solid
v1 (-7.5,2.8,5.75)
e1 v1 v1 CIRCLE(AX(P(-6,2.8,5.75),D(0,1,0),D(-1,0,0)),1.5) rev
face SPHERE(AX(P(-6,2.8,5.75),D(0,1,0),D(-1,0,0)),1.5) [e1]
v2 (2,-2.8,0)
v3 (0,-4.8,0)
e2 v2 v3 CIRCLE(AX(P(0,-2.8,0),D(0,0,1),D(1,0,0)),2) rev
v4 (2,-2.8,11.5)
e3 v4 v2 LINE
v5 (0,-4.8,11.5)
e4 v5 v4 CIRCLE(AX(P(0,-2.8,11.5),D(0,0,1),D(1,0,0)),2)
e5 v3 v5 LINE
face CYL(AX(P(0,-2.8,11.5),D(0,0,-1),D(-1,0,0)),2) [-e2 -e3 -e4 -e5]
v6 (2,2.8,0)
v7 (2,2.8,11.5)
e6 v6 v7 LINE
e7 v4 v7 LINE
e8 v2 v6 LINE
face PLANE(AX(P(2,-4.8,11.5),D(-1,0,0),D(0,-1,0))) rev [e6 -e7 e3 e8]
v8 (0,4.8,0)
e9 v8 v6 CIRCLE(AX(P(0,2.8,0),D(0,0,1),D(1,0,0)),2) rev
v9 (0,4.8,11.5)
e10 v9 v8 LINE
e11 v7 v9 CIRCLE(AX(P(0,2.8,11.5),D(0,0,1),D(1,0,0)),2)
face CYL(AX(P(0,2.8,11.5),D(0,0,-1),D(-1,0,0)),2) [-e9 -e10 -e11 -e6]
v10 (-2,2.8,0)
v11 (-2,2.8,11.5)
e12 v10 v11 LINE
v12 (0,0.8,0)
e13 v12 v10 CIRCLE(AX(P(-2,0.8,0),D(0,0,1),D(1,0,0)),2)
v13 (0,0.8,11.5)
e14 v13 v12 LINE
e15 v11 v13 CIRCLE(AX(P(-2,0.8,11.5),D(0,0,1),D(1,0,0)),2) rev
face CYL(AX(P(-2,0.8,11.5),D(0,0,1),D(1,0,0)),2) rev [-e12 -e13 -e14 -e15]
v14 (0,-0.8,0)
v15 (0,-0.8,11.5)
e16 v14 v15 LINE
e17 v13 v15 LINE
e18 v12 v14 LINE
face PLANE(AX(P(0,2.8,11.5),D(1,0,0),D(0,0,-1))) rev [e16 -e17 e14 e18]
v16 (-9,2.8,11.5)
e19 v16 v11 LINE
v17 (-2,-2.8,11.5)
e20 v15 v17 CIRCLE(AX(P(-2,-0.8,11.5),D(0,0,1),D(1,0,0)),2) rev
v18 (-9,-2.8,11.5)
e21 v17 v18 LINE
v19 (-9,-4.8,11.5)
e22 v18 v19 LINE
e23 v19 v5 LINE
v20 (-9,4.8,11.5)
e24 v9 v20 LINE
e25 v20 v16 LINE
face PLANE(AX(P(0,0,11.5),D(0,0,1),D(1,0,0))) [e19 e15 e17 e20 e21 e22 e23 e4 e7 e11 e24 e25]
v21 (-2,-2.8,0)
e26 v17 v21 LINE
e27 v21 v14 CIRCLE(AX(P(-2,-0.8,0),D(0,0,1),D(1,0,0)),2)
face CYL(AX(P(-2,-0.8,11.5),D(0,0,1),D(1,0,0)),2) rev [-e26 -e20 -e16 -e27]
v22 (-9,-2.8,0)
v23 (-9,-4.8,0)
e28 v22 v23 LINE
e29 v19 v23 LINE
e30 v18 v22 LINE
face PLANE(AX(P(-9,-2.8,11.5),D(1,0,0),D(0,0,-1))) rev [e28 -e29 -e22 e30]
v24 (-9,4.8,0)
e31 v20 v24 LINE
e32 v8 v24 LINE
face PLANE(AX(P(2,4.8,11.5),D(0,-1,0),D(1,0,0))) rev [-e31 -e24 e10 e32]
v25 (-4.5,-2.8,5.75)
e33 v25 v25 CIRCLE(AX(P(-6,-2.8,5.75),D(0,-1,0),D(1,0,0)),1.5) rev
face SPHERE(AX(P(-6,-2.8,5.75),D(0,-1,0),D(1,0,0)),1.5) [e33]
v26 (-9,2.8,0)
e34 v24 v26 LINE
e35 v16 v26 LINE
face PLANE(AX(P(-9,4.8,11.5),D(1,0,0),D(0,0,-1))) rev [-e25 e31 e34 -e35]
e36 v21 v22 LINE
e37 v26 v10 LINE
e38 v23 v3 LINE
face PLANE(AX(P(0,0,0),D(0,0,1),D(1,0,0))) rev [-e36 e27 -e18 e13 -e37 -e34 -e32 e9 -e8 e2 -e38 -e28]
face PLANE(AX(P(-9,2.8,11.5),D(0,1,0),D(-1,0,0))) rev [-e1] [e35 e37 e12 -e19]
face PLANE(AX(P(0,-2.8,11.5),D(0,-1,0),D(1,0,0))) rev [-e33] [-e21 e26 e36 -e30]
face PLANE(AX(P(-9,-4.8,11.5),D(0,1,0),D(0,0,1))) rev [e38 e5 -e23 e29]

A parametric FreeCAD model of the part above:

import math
import FreeCAD as App
import Part
import Sketcher
from FreeCAD import Vector


def edges_at(feature, points):
    """Names of the edges that pass closest to the given points."""
    edges = feature.Shape.Edges
    near = lambda p: min(range(len(edges)), key=lambda i: edges[i].distToShape(Part.Vertex(*p))[0])
    return sorted({f"Edge{near(p) + 1}" for p in points})

doc = App.newDocument("Part")
params = doc.addObject("Spreadsheet::Sheet", "Params")
for row, (alias, value) in enumerate([
    ("sketch1_width", "9 mm"),
    ("sketch1_width2", "11 mm"),
    ("sketch1_height", "2 mm"),
    ("sketch1_height2", "5.6 mm"),
    ("pad1_length", "11.5 mm"),
    ("sketch2_radius", "1.5 mm"),
    ("revolution_angle", "180 deg"),
    ("fillet_radius", "2 mm"),
], start=1):
    params.set(f"A{row}", alias)
    params.set(f"B{row}", "=" + value)
    params.setAlias(f"B{row}", alias)

body = doc.addObject("PartDesign::Body", "Body")

# Sketch on XY plane
sketch1 = body.newObject("Sketcher::SketchObject", "Sketch")
sketch1.AttachmentSupport = (doc.getObject("XY_Plane"), [""])
sketch1.MapMode = "FlatFace"
sketch1.addGeometry(Part.LineSegment(Vector(-9, 2.8, 0), Vector(0, 2.8, 0)), False)
sketch1.addGeometry(Part.LineSegment(Vector(0, 2.8, 0), Vector(0, -2.8, 0)), False)
sketch1.addGeometry(Part.LineSegment(Vector(0, -2.8, 0), Vector(-9, -2.8, 0)), False)
sketch1.addGeometry(Part.LineSegment(Vector(-9, -2.8, 0), Vector(-9, -4.8, 0)), False)
sketch1.addGeometry(Part.LineSegment(Vector(-9, -4.8, 0), Vector(2, -4.8, 0)), False)
sketch1.addGeometry(Part.LineSegment(Vector(2, -4.8, 0), Vector(2, 4.8, 0)), False)
sketch1.addGeometry(Part.LineSegment(Vector(2, 4.8, 0), Vector(-9, 4.8, 0)), False)
sketch1.addGeometry(Part.LineSegment(Vector(-9, 4.8, 0), Vector(-9, 2.8, 0)), False)
sketch1.addConstraint(Sketcher.Constraint("Coincident", 0, 2, 1, 1))
sketch1.addConstraint(Sketcher.Constraint("Coincident", 1, 2, 2, 1))
sketch1.addConstraint(Sketcher.Constraint("Coincident", 2, 2, 3, 1))
sketch1.addConstraint(Sketcher.Constraint("Coincident", 3, 2, 4, 1))
sketch1.addConstraint(Sketcher.Constraint("Coincident", 4, 2, 5, 1))
sketch1.addConstraint(Sketcher.Constraint("Coincident", 5, 2, 6, 1))
sketch1.addConstraint(Sketcher.Constraint("Coincident", 6, 2, 7, 1))
sketch1.addConstraint(Sketcher.Constraint("Coincident", 7, 2, 0, 1))
sketch1.addConstraint(Sketcher.Constraint("Horizontal", 0))
sketch1.addConstraint(Sketcher.Constraint("Vertical", 1))
sketch1.addConstraint(Sketcher.Constraint("Horizontal", 2))
sketch1.addConstraint(Sketcher.Constraint("Vertical", 3))
sketch1.addConstraint(Sketcher.Constraint("Horizontal", 4))
sketch1.addConstraint(Sketcher.Constraint("Vertical", 5))
sketch1.addConstraint(Sketcher.Constraint("Horizontal", 6))
sketch1.addConstraint(Sketcher.Constraint("Vertical", 7))
sketch1.addConstraint(Sketcher.Constraint("Symmetric", 0, 2, 1, 2, -1, 1))
sketch1.addConstraint(Sketcher.Constraint("Symmetric", 3, 2, 6, 2, -1))
sketch1.addConstraint(Sketcher.Constraint("DistanceX", 0, 1, 0, 2, 9.0))
sketch1.addConstraint(Sketcher.Constraint("DistanceX", 4, 1, 4, 2, 11.0))
sketch1.addConstraint(Sketcher.Constraint("DistanceY", 3, 2, 3, 1, 2.0))
sketch1.addConstraint(Sketcher.Constraint("DistanceY", 1, 2, 1, 1, 5.6))
sketch1.setExpression("Constraints[18]", "Params.sketch1_width")
sketch1.setExpression("Constraints[19]", "Params.sketch1_width2")
sketch1.setExpression("Constraints[20]", "Params.sketch1_height")
sketch1.setExpression("Constraints[21]", "Params.sketch1_height2")
pad1 = body.newObject("PartDesign::Pad", "Pad")
pad1.Profile = sketch1
pad1.setExpression("Length", "Params.pad1_length")

# Sketch on XZ plane
sketch2 = body.newObject("Sketcher::SketchObject", "Sketch001")
sketch2.AttachmentSupport = (doc.getObject("XZ_Plane"), [""])
sketch2.MapMode = "FlatFace"
sketch2.AttachmentOffset = App.Placement(Vector(0, 0, -2.8), App.Rotation())
sketch2.addGeometry(Part.LineSegment(Vector(-6, 4.2, 0), Vector(-6, 7.2, 0)), False)
sketch2.addGeometry(Part.ArcOfCircle(Part.Circle(Vector(-6, 5.8, 0), Vector(0, 0, 1), 1.5), math.radians(90), math.radians(270)), False)
sketch2.addGeometry(Part.LineSegment(Vector(-6, 4.2, 0), Vector(-6, 7.2, 0)), True)  # axis
sketch2.addConstraint(Sketcher.Constraint("Coincident", 0, 1, 1, 2))
sketch2.addConstraint(Sketcher.Constraint("Coincident", 1, 1, 0, 2))
sketch2.addConstraint(Sketcher.Constraint("Vertical", 0))
sketch2.addConstraint(Sketcher.Constraint("Vertical", 2))
sketch2.addConstraint(Sketcher.Constraint("Coincident", 2, 1, 0, 1))
sketch2.addConstraint(Sketcher.Constraint("Vertical", 1, 3, 0, 1))
sketch2.addConstraint(Sketcher.Constraint("Equal", 0, 2))
sketch2.addConstraint(Sketcher.Constraint("Radius", 1, 1.5))
sketch2.addConstraint(Sketcher.Constraint("DistanceX", 1, 3, -1, 1, 6.0))
sketch2.addConstraint(Sketcher.Constraint("DistanceY", -1, 1, 1, 3, 5.75))
sketch2.setExpression("Constraints[7]", "Params.sketch2_radius")
revolution = body.newObject("PartDesign::Revolution", "Revolution")
revolution.Profile = sketch2
revolution.ReferenceAxis = (sketch2, ["Axis0"])
revolution.setExpression("Angle", "Params.revolution_angle")
doc.recompute()

mirrored = body.newObject("PartDesign::Mirrored", "Mirrored")
mirrored.Originals = [revolution]
mirrored.MirrorPlane = (doc.getObject("XZ_Plane"), [""])
body.Tip = mirrored
doc.recompute()

fillet = body.newObject("PartDesign::Fillet", "Fillet")
fillet.Base = (mirrored, edges_at(mirrored, [
    (2, 4.8, 5.75),
    (2, -4.8, 5.75),
    (0, -2.8, 5.75),
    (0, 2.8, 5.75),
]))
fillet.setExpression("Radius", "Params.fillet_radius")

doc.recompute()
